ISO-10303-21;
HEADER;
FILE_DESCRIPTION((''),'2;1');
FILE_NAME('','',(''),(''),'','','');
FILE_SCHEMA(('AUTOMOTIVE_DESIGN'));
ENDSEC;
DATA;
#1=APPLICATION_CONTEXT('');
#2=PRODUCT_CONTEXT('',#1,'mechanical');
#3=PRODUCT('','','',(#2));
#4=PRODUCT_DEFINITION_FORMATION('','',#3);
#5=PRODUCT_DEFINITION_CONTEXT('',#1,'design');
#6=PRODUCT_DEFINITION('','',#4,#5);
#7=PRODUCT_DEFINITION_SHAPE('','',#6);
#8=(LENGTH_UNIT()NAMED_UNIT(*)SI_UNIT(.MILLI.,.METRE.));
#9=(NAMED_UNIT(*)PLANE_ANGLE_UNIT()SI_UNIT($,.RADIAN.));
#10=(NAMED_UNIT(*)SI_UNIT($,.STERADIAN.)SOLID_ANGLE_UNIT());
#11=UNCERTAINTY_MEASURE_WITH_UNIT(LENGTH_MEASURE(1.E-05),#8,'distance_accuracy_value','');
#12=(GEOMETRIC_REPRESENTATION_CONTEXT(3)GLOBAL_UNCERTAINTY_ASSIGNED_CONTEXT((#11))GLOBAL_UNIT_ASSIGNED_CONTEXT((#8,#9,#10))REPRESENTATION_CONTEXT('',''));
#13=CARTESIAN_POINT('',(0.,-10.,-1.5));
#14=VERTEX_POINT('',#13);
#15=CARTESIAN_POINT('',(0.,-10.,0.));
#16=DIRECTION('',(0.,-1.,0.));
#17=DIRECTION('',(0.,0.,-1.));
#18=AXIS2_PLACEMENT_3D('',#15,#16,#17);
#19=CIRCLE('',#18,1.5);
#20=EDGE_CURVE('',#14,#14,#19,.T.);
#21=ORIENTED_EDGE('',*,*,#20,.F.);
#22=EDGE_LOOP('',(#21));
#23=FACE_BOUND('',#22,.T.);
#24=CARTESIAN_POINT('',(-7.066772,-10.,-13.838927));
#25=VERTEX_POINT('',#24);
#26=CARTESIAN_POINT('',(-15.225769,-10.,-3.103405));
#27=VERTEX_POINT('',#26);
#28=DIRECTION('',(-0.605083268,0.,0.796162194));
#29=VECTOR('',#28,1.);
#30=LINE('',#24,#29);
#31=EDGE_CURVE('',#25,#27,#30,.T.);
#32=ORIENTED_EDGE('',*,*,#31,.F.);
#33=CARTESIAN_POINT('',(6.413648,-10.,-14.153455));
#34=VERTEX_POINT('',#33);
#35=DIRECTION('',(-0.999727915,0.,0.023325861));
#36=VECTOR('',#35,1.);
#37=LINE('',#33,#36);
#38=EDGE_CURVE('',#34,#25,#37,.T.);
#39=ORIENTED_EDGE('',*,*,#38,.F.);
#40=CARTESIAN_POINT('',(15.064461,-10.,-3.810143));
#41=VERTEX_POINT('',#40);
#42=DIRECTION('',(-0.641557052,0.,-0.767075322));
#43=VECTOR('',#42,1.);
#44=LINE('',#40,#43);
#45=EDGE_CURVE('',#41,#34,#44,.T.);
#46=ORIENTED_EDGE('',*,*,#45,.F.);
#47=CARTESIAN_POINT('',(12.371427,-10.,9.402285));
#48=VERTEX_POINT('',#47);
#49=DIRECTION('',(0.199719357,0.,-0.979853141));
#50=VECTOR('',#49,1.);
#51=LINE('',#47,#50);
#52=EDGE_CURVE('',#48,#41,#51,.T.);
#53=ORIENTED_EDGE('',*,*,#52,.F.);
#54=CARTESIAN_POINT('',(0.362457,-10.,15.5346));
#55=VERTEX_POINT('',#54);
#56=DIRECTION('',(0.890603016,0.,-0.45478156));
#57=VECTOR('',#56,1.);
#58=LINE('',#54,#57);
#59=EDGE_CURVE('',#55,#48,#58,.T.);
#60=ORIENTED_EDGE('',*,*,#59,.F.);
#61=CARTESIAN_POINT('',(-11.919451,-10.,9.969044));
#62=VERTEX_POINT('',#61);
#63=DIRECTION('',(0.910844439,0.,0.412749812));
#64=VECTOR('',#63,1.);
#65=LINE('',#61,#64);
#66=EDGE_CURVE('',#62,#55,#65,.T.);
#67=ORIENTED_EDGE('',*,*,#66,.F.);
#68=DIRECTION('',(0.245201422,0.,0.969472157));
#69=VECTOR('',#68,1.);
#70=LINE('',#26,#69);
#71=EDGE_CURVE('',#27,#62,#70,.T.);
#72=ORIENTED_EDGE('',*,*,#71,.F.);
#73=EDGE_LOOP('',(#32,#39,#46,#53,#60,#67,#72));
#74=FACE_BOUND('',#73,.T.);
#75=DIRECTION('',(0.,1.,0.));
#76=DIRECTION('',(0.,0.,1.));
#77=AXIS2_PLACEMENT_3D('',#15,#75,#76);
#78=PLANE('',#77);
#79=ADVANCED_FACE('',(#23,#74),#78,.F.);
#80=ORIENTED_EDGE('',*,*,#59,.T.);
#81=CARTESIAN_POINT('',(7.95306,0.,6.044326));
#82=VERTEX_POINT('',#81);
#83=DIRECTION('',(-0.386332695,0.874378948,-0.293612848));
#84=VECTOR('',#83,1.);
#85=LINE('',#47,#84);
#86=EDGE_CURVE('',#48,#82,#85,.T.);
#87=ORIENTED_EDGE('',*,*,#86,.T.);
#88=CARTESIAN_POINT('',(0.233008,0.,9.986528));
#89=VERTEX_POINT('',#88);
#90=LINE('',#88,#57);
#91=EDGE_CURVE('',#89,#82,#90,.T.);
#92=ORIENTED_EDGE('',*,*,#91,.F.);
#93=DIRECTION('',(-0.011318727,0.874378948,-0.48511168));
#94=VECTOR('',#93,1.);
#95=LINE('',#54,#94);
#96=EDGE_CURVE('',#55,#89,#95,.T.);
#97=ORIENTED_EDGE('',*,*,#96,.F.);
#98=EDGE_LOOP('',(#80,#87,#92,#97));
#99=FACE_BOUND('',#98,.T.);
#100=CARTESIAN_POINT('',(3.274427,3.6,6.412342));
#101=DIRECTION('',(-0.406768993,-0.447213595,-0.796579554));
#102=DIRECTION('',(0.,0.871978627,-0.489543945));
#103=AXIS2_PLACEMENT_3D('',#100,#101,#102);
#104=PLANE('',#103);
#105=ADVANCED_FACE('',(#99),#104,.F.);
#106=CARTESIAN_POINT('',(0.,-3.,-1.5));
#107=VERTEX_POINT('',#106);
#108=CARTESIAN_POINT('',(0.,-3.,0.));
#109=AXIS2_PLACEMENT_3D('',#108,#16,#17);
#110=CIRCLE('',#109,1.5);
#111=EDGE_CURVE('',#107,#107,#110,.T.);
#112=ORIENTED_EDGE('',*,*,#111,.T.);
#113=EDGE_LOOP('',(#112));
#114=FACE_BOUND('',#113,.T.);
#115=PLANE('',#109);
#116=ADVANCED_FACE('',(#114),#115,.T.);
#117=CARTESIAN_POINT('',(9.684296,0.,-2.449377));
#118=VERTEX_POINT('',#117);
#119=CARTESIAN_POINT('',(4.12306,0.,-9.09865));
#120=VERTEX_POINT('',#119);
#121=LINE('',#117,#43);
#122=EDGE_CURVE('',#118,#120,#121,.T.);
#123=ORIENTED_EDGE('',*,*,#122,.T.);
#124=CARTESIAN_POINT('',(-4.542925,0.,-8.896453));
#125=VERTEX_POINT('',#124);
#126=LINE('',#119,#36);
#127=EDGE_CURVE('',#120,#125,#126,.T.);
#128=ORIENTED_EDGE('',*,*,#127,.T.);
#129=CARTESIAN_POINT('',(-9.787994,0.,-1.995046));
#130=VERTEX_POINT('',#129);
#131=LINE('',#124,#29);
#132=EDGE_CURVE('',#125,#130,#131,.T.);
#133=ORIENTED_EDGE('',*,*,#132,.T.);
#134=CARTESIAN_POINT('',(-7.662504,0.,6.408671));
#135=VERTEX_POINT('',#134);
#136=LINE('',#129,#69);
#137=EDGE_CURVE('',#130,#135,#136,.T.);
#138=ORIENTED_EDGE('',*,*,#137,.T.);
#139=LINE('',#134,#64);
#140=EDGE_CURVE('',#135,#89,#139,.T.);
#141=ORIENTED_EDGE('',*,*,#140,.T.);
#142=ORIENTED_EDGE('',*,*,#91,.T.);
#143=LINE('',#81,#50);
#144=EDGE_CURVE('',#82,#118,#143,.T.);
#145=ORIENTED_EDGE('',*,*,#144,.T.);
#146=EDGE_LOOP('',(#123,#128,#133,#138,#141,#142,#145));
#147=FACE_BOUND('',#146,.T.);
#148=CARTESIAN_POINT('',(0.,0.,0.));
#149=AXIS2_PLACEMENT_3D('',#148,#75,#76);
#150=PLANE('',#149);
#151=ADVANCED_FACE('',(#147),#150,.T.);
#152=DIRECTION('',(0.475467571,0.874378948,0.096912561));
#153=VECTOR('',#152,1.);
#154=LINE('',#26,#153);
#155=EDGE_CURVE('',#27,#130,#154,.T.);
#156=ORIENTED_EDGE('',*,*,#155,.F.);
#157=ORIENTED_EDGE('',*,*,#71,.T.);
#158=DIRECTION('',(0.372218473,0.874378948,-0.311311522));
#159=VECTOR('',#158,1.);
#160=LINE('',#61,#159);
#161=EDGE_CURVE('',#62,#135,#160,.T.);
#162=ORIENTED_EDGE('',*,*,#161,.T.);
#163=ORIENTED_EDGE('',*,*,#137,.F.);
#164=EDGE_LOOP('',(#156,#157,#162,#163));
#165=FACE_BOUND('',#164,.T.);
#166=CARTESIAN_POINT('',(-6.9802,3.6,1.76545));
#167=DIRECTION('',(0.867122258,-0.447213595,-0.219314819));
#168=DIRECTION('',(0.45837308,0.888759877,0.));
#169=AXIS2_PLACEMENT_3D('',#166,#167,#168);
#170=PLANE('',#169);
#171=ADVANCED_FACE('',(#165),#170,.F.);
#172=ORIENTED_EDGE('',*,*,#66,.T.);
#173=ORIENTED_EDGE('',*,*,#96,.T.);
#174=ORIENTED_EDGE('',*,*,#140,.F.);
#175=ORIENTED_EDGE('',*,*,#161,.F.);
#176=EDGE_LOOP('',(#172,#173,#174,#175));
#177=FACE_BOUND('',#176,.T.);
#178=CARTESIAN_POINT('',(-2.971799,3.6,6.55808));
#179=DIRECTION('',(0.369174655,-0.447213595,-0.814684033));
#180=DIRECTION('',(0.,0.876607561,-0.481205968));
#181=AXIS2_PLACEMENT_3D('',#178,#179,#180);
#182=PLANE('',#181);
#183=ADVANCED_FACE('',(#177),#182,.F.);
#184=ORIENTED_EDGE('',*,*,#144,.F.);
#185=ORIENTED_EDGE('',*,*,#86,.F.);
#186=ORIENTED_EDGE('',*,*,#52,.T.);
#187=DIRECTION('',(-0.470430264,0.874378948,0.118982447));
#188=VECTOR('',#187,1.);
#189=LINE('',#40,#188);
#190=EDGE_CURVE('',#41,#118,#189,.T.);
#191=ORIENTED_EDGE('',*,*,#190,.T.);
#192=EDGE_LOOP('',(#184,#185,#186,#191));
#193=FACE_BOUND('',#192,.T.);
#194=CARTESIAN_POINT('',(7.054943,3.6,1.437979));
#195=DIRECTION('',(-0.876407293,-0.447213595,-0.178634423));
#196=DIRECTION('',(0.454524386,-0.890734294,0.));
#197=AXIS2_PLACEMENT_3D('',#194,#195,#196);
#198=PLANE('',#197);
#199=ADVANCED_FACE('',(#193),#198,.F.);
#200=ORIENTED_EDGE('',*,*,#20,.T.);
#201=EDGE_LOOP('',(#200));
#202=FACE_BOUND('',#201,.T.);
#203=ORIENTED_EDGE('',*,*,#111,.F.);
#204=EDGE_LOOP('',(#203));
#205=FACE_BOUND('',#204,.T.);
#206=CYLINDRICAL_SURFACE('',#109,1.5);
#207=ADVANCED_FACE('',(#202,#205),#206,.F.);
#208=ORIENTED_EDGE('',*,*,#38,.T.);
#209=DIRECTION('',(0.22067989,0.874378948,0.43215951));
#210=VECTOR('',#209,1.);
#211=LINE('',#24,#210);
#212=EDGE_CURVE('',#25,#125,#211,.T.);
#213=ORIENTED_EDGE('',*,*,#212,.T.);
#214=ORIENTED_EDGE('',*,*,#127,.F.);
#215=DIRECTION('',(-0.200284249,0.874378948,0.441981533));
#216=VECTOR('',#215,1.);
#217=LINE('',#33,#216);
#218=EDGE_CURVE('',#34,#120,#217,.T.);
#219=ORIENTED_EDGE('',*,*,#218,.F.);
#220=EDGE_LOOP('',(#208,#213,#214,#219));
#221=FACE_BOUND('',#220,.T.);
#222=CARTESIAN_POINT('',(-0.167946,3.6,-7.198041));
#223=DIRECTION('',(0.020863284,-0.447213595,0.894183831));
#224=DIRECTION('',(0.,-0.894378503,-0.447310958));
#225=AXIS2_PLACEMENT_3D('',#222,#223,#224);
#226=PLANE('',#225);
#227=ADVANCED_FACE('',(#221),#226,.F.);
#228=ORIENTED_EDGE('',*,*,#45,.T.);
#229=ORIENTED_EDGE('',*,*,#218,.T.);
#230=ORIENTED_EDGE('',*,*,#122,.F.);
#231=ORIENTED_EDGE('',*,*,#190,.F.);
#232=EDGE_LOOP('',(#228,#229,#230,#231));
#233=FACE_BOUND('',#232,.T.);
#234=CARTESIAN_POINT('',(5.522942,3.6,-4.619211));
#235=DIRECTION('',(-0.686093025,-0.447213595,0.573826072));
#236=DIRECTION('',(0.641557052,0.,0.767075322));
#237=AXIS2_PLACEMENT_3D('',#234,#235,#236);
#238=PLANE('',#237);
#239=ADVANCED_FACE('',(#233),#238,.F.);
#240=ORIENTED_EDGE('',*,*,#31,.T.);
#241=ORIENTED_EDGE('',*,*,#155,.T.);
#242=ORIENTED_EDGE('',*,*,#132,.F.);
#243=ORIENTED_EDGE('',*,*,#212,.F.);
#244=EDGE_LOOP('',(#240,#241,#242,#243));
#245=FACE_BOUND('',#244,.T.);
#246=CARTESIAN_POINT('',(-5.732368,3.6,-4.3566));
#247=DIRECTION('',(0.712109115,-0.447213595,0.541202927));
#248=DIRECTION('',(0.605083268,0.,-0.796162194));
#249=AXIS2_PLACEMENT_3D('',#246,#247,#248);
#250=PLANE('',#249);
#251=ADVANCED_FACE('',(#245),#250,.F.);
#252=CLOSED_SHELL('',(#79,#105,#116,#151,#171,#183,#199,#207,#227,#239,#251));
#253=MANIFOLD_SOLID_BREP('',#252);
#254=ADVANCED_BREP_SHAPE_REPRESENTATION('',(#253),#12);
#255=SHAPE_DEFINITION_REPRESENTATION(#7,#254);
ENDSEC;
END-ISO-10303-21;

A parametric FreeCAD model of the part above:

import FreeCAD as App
import Part
import Sketcher
from FreeCAD import Vector
Q = App.Units.Quantity


def add_polygon(sketch, points):
    """Adds a closed chain of lines whose ends are joined by coincident constraints."""
    first, n = sketch.GeometryCount, len(points)
    for a, b in zip(points, points[1:] + points[:1]):
        sketch.addGeometry(Part.LineSegment(App.Vector(*a, 0), App.Vector(*b, 0)), False)
    for i in range(n):
        sketch.addConstraint(Sketcher.Constraint("Coincident", first + i, 2, first + (i + 1) % n, 1))

doc = App.newDocument("Part")
params = doc.addObject("Spreadsheet::Sheet", "Params")
for row, (alias, value) in enumerate([
    ("sketch3_diameter", "3 mm"),
    ("pocket1_length", "7 mm"),
], start=1):
    params.set(f"A{row}", alias)
    params.set(f"B{row}", "=" + value)
    params.setAlias(f"B{row}", alias)

body = doc.addObject("PartDesign::Body", "Body")

# Sketch on XZ plane
sketch1 = body.newObject("Sketcher::SketchObject", "Sketch")
sketch1.AttachmentSupport = (doc.getObject("XZ_Plane"), [""])
sketch1.MapMode = "FlatFace"
sketch1.AttachmentOffset = App.Placement(Vector(0, 0, 10), App.Rotation())
add_polygon(sketch1, [(6.413648, -14.153455), (-7.066772, -13.838927), (-15.225769, -3.103405), (-11.919451, 9.969044), (0.362457, 15.5346), (12.371427, 9.402285), (15.064461, -3.810143)])  # lines 0-6
sketch1.addConstraint([
    Sketcher.Constraint("Equal", 0, 1),
    Sketcher.Constraint("Equal", 1, 2),
    Sketcher.Constraint("Equal", 2, 3),
    Sketcher.Constraint("Equal", 3, 4),
    Sketcher.Constraint("Equal", 4, 5),
    Sketcher.Constraint("Equal", 5, 6),
    Sketcher.Constraint("DistanceY", -1, 1, 3, 2, Q("15.5346 mm")),
    Sketcher.Constraint("DistanceX", 0, 2, 4, 2, Q("19.438199 mm")),
    Sketcher.Constraint("Distance", 0, Q("13.484089 mm")),
    Sketcher.Constraint("DistanceX", 1, 2, -1, 1, Q("15.225769 mm")),
    Sketcher.Constraint("DistanceX", 2, 2, -1, 1, Q("11.919451 mm")),
    Sketcher.Constraint("DistanceX", -1, 1, 5, 2, Q("15.064461 mm")),
    Sketcher.Constraint("DistanceX", -1, 1, 6, 2, Q("6.413648 mm")),
    Sketcher.Constraint("DistanceX", 2, 2, 0, 2, Q("4.852679 mm")),
])

# Sketch on XZ plane
sketch2 = body.newObject("Sketcher::SketchObject", "Sketch001")
sketch2.AttachmentSupport = (doc.getObject("XZ_Plane"), [""])
sketch2.MapMode = "FlatFace"
add_polygon(sketch2, [(8, 6), (10, -2), (4, -9), (-5, -9), (-10, -2), (-8, 6), (0, 10)])  # lines 0-6
sketch2.addConstraint([
    Sketcher.Constraint("Equal", 0, 1),
    Sketcher.Constraint("Equal", 1, 2),
    Sketcher.Constraint("Equal", 2, 3),
    Sketcher.Constraint("Equal", 3, 4),
    Sketcher.Constraint("Equal", 4, 5),
    Sketcher.Constraint("Equal", 5, 6),
    Sketcher.Constraint("DistanceX", 1, 2, 6, 2, Q("3.830001 mm")),
    Sketcher.Constraint("DistanceX", 4, 2, 0, 2, Q("17.346801 mm")),
    Sketcher.Constraint("DistanceX", -1, 1, 1, 2, Q("4.12306 mm")),
    Sketcher.Constraint("DistanceY", 1, 2, -1, 1, Q("9.09865 mm")),
    Sketcher.Constraint("DistanceY", -1, 1, 4, 2, Q("6.408671 mm")),
    Sketcher.Constraint("DistanceY", -1, 1, 5, 2, Q("9.986528 mm")),
    Sketcher.Constraint("DistanceX", 2, 2, 0, 2, Q("14.227221 mm")),
    Sketcher.Constraint("DistanceX", 3, 2, 2, 2, Q("5.245069 mm")),
])

additiveloft = body.newObject("PartDesign::AdditiveLoft", "AdditiveLoft")
additiveloft.Profile = sketch1
additiveloft.Sections = [sketch2]

# Sketch on XZ plane
sketch3 = body.newObject("Sketcher::SketchObject", "Sketch002")
sketch3.AttachmentSupport = (doc.getObject("XZ_Plane"), [""])
sketch3.MapMode = "FlatFace"
sketch3.AttachmentOffset = App.Placement(Vector(0, 0, 10), App.Rotation())
sketch3.addGeometry(Part.Circle(Vector(0, 0, 0), Vector(0, 0, 1), 1.5), False)
sketch3.addConstraint([
    Sketcher.Constraint("Coincident", 0, 3, -1, 1),
    Sketcher.Constraint("Diameter", 0, Q("3 mm")),
])
sketch3.setExpression("Constraints[1]", "Params.sketch3_diameter")
pocket1 = body.newObject("PartDesign::Pocket", "Pocket")
pocket1.Profile = sketch3
pocket1.setExpression("Length", "Params.pocket1_length")

doc.recompute()
